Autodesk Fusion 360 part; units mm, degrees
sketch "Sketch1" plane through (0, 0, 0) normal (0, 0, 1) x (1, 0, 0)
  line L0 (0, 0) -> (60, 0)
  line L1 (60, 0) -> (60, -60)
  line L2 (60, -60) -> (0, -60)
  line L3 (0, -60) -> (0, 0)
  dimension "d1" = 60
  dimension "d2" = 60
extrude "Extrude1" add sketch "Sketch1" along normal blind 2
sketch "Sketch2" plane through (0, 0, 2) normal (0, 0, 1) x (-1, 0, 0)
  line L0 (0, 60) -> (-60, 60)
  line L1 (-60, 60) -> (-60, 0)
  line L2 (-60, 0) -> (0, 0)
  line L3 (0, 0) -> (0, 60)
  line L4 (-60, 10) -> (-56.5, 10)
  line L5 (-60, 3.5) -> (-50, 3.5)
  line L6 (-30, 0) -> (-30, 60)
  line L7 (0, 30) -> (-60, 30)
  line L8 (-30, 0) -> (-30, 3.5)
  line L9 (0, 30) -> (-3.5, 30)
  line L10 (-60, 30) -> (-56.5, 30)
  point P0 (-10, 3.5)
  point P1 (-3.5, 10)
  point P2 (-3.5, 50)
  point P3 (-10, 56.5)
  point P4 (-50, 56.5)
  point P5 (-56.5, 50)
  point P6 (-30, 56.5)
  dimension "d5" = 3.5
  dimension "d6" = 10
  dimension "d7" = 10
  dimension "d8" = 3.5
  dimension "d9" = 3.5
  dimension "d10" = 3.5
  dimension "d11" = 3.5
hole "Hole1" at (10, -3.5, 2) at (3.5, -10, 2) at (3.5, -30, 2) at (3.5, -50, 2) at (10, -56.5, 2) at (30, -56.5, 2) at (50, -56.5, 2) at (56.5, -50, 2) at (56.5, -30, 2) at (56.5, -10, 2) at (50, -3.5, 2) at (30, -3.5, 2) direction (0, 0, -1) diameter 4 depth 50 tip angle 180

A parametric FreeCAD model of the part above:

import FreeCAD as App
import Part
import Sketcher

V = App.Vector


def add_polygon(sketch, points):
    """Adds a closed chain of lines whose ends are joined by coincident constraints."""
    first, n = sketch.GeometryCount, len(points)
    for a, b in zip(points, points[1:] + points[:1]):
        sketch.addGeometry(Part.LineSegment(App.Vector(*a, 0), App.Vector(*b, 0)), False)
    for i in range(n):
        sketch.addConstraint(Sketcher.Constraint("Coincident", first + i, 2, first + (i + 1) % n, 1))

doc = App.newDocument("Part")
body = doc.addObject("PartDesign::Body", "Body")

# Sketch on XY plane
sketch1 = doc.addObject("Sketcher::SketchObject", "Sketch")
body.addObject(sketch1)
sketch1.AttachmentSupport = (doc.XY_Plane, [""])
sketch1.MapMode = "FlatFace"
add_polygon(sketch1, [(60, 0), (0, 0), (0, -60), (60, -60)])  # lines 0-3
sketch1.addConstraint([
    Sketcher.Constraint("Horizontal", 0),
    Sketcher.Constraint("Vertical", 1),
    Sketcher.Constraint("Horizontal", 2),
    Sketcher.Constraint("Vertical", 3),
    Sketcher.Constraint("Coincident", 0, 2, -1, 1),
    Sketcher.Constraint("Equal", 2, 1),
    Sketcher.Constraint("DistanceX", 0, 2, 0, 1, 60.0),
])
pad1 = doc.addObject("PartDesign::Pad", "Pad")
body.addObject(pad1)
pad1.Profile = sketch1
pad1.Length = 2

# Sketch on XY plane
sketch2 = doc.addObject("Sketcher::SketchObject", "Sketch001")
body.addObject(sketch2)
sketch2.AttachmentSupport = (doc.XY_Plane, [""])
sketch2.MapMode = "FlatFace"
sketch2.AttachmentOffset = App.Placement(V(0, 0, 2), App.Rotation())
sketch2.addGeometry([
    Part.Circle(V(10, -3.5, 0), V(0, 0, 1), 2),  # 0
    Part.Circle(V(3.5, -10, 0), V(0, 0, 1), 2),  # 1
    Part.Circle(V(3.5, -30, 0), V(0, 0, 1), 2),  # 2
    Part.Circle(V(3.5, -50, 0), V(0, 0, 1), 2),  # 3
    Part.Circle(V(10, -56.5, 0), V(0, 0, 1), 2),  # 4
    Part.Circle(V(30, -56.5, 0), V(0, 0, 1), 2),  # 5
    Part.Circle(V(50, -56.5, 0), V(0, 0, 1), 2),  # 6
    Part.Circle(V(56.5, -50, 0), V(0, 0, 1), 2),  # 7
    Part.Circle(V(56.5, -30, 0), V(0, 0, 1), 2),  # 8
    Part.Circle(V(56.5, -10, 0), V(0, 0, 1), 2),  # 9
    Part.Circle(V(50, -3.5, 0), V(0, 0, 1), 2),  # 10
    Part.Circle(V(30, -3.5, 0), V(0, 0, 1), 2),  # 11
], False)
sketch2.addConstraint([
    Sketcher.Constraint("Equal", 0, 1),
    Sketcher.Constraint("Equal", 1, 2),
    Sketcher.Constraint("Equal", 2, 3),
    Sketcher.Constraint("Equal", 3, 4),
    Sketcher.Constraint("Equal", 4, 5),
    Sketcher.Constraint("Equal", 5, 6),
    Sketcher.Constraint("Equal", 6, 7),
    Sketcher.Constraint("Equal", 7, 8),
    Sketcher.Constraint("Equal", 8, 9),
    Sketcher.Constraint("Equal", 9, 10),
    Sketcher.Constraint("Equal", 10, 11),
    Sketcher.Constraint("Horizontal", 4, 3, 5, 3),
    Sketcher.Constraint("Horizontal", 5, 3, 6, 3),
    Sketcher.Constraint("Horizontal", 3, 3, 7, 3),
    Sketcher.Constraint("Horizontal", 2, 3, 8, 3),
    Sketcher.Constraint("Horizontal", 1, 3, 9, 3),
    Sketcher.Constraint("Horizontal", 0, 3, 10, 3),
    Sketcher.Constraint("Horizontal", 10, 3, 11, 3),
    Sketcher.Constraint("Vertical", 1, 3, 2, 3),
    Sketcher.Constraint("Vertical", 2, 3, 3, 3),
    Sketcher.Constraint("Vertical", 0, 3, 4, 3),
    Sketcher.Constraint("Vertical", 7, 3, 8, 3),
    Sketcher.Constraint("Vertical", 8, 3, 9, 3),
    Sketcher.Constraint("Vertical", 6, 3, 10, 3),
    Sketcher.Constraint("Vertical", 5, 3, 11, 3),
    Sketcher.Constraint("Diameter", 0, 4.0),
    Sketcher.Constraint("DistanceX", -1, 1, 0, 3, 10.0),
    Sketcher.Constraint("DistanceY", 1, 3, -1, 1, 10.0),
    Sketcher.Constraint("DistanceY", 2, 3, -1, 1, 30.0),
    Sketcher.Constraint("DistanceY", 3, 3, -1, 1, 50.0),
    Sketcher.Constraint("DistanceX", -1, 1, 5, 3, 30.0),
    Sketcher.Constraint("DistanceX", -1, 1, 6, 3, 50.0),
    Sketcher.Constraint("DistanceY", 4, 3, 0, 3, 53.0),
    Sketcher.Constraint("DistanceX", 3, 3, 7, 3, 53.0),
    Sketcher.Constraint("DistanceY", 0, 3, -1, 1, 3.5),
    Sketcher.Constraint("DistanceX", -1, 1, 1, 3, 3.5),
])
doc.recompute()
hole = doc.addObject("PartDesign::Hole", "Hole")
body.addObject(hole)
hole.Profile = sketch2
hole.ThreadType = "None"
hole.Diameter = 4
hole.DepthType = "Dimension"
hole.Depth = 50
hole.DrillPoint = "Flat"

doc.recompute()
